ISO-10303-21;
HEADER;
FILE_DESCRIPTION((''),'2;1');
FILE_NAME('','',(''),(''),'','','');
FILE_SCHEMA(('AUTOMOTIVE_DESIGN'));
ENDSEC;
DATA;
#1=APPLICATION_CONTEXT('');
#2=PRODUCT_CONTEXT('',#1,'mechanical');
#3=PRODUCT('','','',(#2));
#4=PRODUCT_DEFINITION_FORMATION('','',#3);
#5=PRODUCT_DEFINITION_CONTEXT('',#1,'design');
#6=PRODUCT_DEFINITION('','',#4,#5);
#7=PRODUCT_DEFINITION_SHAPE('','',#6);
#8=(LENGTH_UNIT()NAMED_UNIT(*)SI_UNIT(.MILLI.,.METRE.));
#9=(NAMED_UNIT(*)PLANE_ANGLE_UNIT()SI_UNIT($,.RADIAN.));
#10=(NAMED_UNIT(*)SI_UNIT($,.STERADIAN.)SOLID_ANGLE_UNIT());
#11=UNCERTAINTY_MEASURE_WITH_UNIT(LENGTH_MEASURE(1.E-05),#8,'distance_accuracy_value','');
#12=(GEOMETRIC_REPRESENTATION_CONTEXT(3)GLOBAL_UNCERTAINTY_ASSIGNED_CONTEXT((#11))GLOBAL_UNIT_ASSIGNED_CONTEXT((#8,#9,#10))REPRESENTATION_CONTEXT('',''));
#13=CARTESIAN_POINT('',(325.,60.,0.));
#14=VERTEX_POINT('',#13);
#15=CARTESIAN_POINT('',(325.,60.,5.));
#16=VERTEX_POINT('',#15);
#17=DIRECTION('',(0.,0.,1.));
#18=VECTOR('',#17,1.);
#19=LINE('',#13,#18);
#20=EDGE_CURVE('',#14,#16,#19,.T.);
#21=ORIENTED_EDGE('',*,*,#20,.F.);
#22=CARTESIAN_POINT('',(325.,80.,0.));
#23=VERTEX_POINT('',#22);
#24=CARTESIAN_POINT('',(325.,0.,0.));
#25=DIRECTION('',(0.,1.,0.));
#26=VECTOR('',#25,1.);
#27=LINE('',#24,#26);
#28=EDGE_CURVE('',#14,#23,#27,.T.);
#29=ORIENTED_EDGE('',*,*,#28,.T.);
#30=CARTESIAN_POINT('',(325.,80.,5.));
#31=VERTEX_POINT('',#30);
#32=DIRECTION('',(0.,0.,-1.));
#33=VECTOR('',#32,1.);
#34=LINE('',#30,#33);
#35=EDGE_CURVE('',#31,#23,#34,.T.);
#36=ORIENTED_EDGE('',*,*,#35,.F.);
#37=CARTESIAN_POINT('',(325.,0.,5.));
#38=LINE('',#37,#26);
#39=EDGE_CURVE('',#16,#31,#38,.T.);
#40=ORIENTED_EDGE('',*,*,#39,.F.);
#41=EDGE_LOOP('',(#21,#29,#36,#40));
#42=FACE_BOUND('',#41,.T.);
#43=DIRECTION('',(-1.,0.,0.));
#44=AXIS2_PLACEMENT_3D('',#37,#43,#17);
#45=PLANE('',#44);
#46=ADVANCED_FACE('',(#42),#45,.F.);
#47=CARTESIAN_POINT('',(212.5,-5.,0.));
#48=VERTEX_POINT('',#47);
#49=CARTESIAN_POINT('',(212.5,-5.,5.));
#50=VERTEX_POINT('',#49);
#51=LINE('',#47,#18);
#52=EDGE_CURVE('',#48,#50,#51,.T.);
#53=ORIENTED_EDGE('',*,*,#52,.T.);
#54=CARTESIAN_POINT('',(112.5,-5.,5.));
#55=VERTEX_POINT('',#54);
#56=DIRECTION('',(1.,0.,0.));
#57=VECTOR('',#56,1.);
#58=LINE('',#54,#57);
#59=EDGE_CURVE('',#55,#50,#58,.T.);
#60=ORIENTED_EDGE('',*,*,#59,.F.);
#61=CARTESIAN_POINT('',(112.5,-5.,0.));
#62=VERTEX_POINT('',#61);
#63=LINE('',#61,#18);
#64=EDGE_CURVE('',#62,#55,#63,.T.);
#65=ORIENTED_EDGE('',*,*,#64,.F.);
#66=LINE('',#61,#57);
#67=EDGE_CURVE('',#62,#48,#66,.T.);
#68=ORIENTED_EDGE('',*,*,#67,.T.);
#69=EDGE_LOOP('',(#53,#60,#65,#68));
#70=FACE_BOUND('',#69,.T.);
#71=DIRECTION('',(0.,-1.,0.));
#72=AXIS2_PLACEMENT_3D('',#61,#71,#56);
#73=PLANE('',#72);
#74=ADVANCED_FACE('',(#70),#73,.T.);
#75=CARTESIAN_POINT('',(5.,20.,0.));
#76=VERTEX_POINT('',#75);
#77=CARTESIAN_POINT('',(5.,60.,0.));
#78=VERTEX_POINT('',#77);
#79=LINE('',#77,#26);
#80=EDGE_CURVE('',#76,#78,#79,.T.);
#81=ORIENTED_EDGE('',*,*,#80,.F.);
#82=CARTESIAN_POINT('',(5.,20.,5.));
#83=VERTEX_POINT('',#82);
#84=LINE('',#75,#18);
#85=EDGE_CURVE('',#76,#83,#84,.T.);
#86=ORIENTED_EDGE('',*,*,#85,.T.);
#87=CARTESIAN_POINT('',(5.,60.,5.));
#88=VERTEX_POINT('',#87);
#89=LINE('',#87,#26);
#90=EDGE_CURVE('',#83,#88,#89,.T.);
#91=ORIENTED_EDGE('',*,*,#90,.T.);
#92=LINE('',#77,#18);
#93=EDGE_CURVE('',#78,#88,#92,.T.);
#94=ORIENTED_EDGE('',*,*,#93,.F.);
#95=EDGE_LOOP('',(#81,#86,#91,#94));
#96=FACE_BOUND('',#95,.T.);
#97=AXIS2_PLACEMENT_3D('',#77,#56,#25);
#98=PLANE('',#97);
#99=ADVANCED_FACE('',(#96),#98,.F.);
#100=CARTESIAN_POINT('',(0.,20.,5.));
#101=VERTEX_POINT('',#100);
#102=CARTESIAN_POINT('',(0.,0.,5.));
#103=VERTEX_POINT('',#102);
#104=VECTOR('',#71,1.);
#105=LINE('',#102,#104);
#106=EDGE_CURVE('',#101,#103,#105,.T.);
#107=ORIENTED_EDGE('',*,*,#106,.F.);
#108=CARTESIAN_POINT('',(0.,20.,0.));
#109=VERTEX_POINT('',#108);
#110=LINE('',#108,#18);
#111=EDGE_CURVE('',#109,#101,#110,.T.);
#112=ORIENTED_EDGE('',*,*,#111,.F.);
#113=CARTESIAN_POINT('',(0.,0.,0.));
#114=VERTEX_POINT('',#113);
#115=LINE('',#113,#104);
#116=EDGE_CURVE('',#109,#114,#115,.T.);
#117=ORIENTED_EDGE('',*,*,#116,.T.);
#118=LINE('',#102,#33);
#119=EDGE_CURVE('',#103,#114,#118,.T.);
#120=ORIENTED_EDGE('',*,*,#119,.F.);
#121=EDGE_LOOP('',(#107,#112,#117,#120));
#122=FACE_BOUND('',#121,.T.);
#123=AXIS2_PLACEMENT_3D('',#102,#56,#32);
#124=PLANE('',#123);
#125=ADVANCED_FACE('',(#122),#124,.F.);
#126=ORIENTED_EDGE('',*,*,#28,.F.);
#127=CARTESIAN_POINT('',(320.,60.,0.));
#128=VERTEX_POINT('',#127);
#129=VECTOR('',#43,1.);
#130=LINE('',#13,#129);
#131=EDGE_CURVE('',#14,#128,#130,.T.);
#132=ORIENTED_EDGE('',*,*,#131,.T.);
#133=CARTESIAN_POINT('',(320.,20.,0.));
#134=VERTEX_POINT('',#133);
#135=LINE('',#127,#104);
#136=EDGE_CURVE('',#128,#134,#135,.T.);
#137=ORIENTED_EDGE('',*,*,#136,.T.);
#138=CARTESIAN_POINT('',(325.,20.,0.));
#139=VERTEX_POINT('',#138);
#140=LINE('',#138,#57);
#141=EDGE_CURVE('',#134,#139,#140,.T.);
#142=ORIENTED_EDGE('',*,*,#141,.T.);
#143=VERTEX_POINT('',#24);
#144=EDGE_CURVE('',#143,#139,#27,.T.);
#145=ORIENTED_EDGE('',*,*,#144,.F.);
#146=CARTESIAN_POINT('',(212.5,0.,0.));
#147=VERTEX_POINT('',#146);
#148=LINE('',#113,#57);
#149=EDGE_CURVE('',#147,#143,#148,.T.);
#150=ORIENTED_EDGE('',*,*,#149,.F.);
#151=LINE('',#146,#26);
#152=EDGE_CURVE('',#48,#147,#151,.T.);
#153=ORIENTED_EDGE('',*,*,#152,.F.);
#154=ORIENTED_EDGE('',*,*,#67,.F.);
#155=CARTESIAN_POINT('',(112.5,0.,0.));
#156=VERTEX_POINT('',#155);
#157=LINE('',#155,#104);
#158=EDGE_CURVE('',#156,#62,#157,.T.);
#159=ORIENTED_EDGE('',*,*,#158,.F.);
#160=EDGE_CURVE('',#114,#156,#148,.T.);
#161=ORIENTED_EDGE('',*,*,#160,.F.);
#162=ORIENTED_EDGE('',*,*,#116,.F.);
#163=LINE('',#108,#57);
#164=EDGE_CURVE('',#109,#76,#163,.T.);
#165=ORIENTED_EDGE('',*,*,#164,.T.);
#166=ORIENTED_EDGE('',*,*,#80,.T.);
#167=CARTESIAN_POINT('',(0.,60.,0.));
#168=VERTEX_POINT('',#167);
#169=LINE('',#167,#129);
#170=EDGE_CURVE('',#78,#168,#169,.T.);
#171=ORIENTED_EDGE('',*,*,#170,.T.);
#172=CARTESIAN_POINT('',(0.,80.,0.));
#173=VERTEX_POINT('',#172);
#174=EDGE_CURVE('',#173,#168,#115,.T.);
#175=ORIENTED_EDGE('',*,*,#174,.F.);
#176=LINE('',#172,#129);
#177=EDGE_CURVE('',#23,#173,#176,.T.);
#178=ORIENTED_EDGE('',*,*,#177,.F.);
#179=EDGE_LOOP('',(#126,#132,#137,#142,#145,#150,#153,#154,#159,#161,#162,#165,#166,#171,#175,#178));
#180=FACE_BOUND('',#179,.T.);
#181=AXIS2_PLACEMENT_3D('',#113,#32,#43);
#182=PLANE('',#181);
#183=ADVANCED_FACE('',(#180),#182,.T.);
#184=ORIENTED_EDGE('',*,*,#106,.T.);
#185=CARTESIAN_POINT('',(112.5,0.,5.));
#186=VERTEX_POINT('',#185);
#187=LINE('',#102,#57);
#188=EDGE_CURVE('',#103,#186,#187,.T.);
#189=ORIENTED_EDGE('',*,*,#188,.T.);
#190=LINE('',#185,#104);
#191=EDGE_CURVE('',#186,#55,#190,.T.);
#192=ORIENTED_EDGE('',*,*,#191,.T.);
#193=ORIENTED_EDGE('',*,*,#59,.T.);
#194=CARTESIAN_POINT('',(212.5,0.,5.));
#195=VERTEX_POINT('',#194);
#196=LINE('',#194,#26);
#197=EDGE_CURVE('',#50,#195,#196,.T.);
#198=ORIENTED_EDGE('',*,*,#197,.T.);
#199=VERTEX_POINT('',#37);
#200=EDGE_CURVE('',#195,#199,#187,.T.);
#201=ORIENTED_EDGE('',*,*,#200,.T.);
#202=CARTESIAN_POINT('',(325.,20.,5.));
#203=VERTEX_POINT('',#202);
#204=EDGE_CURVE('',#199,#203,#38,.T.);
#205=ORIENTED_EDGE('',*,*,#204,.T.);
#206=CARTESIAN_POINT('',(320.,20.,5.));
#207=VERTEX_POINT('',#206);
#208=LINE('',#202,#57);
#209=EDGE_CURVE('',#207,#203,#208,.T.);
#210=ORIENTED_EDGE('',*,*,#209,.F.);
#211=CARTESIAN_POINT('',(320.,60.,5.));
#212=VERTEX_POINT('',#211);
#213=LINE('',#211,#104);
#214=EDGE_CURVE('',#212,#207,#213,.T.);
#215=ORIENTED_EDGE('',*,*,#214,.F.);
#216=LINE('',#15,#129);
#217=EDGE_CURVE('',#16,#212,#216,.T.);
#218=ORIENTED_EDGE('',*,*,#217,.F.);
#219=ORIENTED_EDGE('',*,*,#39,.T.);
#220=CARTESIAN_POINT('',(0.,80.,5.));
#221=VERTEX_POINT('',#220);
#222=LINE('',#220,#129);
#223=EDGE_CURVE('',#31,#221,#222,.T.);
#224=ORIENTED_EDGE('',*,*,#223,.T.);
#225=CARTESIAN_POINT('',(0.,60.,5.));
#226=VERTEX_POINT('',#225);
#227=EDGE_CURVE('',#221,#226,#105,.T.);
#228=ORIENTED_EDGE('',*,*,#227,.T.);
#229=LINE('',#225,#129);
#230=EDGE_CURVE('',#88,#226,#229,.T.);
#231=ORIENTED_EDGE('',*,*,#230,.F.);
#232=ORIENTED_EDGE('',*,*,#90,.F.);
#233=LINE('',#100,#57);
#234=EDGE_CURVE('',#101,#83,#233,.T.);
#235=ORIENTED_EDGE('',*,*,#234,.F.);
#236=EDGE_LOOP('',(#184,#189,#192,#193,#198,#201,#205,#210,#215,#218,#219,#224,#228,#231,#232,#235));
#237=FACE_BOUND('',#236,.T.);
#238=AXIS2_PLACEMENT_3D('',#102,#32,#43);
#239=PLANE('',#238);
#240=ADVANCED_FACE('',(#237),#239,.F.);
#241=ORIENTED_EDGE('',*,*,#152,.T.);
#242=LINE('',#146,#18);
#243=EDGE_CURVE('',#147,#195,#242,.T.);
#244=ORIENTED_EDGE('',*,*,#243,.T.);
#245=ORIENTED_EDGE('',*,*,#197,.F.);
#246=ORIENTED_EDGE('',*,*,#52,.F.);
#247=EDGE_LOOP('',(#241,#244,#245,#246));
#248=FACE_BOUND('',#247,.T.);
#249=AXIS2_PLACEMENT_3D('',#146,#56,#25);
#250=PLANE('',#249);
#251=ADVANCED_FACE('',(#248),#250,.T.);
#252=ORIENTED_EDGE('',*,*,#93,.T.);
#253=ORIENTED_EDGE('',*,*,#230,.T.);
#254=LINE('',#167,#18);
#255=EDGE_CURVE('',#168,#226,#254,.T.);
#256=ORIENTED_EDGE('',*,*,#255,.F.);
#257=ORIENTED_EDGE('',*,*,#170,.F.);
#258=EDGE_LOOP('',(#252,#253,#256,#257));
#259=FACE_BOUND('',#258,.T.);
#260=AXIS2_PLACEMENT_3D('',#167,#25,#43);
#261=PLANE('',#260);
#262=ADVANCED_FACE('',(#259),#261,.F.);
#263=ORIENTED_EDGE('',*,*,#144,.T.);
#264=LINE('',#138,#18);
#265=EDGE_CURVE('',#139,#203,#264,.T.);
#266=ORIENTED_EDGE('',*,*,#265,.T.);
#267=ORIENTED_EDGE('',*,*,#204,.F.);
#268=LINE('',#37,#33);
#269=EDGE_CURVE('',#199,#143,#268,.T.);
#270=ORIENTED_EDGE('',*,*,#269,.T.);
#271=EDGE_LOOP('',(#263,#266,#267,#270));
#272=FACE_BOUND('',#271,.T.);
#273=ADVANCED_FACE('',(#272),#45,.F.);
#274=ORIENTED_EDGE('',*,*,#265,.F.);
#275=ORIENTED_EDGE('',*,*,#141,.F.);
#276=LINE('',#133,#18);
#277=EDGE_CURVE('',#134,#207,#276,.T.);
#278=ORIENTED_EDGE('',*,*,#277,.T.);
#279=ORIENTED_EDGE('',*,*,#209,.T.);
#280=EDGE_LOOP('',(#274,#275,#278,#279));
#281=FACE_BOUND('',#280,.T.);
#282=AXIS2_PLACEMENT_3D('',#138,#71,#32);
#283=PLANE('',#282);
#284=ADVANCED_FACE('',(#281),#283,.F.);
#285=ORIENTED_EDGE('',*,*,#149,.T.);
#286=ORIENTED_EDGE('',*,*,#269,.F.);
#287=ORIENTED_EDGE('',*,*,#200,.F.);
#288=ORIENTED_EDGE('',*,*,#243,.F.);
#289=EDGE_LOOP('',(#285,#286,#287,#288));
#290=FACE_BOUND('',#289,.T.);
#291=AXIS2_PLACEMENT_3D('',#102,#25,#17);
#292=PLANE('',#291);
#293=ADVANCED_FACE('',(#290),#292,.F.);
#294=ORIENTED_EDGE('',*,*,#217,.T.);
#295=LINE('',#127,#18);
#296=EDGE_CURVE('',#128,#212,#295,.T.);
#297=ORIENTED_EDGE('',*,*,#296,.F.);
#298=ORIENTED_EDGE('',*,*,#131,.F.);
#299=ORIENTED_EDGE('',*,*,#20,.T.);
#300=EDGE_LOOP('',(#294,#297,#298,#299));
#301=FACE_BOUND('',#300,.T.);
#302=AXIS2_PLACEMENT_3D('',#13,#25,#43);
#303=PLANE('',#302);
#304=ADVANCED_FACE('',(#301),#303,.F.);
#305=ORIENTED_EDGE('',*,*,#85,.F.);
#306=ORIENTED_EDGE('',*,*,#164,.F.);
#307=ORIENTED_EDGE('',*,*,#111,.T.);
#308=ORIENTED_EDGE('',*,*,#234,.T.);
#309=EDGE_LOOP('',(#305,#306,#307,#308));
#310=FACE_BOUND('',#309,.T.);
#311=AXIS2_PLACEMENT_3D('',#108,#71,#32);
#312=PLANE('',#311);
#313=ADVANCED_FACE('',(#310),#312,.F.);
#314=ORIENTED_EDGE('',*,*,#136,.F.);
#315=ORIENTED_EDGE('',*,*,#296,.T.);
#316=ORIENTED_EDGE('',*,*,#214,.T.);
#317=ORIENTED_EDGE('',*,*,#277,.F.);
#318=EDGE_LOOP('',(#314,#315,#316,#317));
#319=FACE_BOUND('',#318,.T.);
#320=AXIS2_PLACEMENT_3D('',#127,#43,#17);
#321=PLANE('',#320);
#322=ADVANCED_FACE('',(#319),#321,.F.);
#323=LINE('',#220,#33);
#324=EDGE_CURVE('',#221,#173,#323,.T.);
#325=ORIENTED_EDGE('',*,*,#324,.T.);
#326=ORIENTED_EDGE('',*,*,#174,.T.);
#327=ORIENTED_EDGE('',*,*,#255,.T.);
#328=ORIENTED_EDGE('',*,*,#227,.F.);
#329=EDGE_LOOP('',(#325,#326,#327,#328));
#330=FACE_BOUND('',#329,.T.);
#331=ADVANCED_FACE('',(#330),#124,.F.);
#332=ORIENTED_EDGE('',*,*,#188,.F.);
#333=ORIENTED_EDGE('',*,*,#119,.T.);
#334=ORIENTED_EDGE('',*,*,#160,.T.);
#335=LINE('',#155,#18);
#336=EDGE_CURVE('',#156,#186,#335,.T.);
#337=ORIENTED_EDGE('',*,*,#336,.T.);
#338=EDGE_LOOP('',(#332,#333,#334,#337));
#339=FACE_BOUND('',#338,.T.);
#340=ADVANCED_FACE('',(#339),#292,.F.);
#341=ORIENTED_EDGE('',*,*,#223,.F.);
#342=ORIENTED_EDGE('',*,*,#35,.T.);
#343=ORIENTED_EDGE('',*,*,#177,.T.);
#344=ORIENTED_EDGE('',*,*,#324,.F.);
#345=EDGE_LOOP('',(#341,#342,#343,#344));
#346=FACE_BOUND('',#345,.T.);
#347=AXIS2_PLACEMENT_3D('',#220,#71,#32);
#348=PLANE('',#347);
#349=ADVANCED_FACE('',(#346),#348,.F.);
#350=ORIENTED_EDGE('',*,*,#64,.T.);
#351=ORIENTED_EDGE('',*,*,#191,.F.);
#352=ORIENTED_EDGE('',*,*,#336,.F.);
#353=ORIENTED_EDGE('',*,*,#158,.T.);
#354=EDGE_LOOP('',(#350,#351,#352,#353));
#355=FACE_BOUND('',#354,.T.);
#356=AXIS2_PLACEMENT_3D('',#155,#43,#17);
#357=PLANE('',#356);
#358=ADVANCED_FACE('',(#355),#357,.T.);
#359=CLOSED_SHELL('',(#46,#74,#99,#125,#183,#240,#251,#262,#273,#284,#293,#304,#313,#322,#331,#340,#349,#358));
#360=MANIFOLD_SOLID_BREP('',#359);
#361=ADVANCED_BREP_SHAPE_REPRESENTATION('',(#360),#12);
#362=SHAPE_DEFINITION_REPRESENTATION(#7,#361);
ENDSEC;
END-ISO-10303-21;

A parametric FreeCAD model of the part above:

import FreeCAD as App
import Part
import Sketcher

V = App.Vector
Q = App.Units.Quantity

doc = App.newDocument("Part")
params = doc.addObject("Spreadsheet::Sheet", "Params")
for row, (alias, value) in enumerate([
    ("sketch1_width", "325 mm"),
    ("sketch1_height", "80 mm"),
    ("pad1_length", "5 mm"),
    ("sketch2_width", "100 mm"),
    ("sketch2_height", "5 mm"),
    ("pad2_length", "5 mm"),
    ("sketch3_width", "5 mm"),
    ("sketch3_height", "40 mm"),
], start=1):
    params.set(f"A{row}", alias)
    params.set(f"B{row}", "=" + value)
    params.setAlias(f"B{row}", alias)

body = doc.addObject("PartDesign::Body", "Body")

sketch1 = body.newObject("Sketcher::SketchObject", "Sketch")
sketch1.AttachmentSupport = (doc.getObject("XY_Plane"), [""])
sketch1.MapMode = "FlatFace"
sketch1.addGeometry(Part.LineSegment(V(0, 80, 0), V(0, 0, 0)), False)
sketch1.addGeometry(Part.LineSegment(V(0, 0, 0), V(325, 0, 0)), False)
sketch1.addGeometry(Part.LineSegment(V(325, 0, 0), V(325, 80, 0)), False)
sketch1.addGeometry(Part.LineSegment(V(325, 80, 0), V(0, 80, 0)), False)
sketch1.addConstraint(Sketcher.Constraint("Coincident", 0, 2, 1, 1))
sketch1.addConstraint(Sketcher.Constraint("Coincident", 1, 2, 2, 1))
sketch1.addConstraint(Sketcher.Constraint("Coincident", 2, 2, 3, 1))
sketch1.addConstraint(Sketcher.Constraint("Coincident", 3, 2, 0, 1))
sketch1.addConstraint(Sketcher.Constraint("Vertical", 0))
sketch1.addConstraint(Sketcher.Constraint("Horizontal", 1))
sketch1.addConstraint(Sketcher.Constraint("Vertical", 2))
sketch1.addConstraint(Sketcher.Constraint("Horizontal", 3))
sketch1.addConstraint(Sketcher.Constraint("Coincident", 0, 2, -1, 1))
sketch1.addConstraint(Sketcher.Constraint("DistanceX", 1, 1, 1, 2, Q("325 mm")))
sketch1.addConstraint(Sketcher.Constraint("DistanceY", 0, 2, 0, 1, Q("80 mm")))
sketch1.setExpression("Constraints[9]", "Params.sketch1_width")
sketch1.setExpression("Constraints[10]", "Params.sketch1_height")
pad1 = body.newObject("PartDesign::Pad", "Pad")
pad1.Profile = sketch1
pad1.setExpression("Length", "Params.pad1_length")

sketch2 = body.newObject("Sketcher::SketchObject", "Sketch001")
sketch2.AttachmentSupport = (doc.getObject("XY_Plane"), [""])
sketch2.MapMode = "FlatFace"
sketch2.AttachmentOffset = App.Placement(V(0, 0, 5), App.Rotation())
sketch2.addGeometry(Part.LineSegment(V(112, 0, 0), V(112, -5, 0)), False)
sketch2.addGeometry(Part.LineSegment(V(112, -5, 0), V(212, -5, 0)), False)
sketch2.addGeometry(Part.LineSegment(V(212, -5, 0), V(212, 0, 0)), False)
sketch2.addGeometry(Part.LineSegment(V(212, 0, 0), V(112, 0, 0)), False)
sketch2.addConstraint(Sketcher.Constraint("Coincident", 0, 2, 1, 1))
sketch2.addConstraint(Sketcher.Constraint("Coincident", 1, 2, 2, 1))
sketch2.addConstraint(Sketcher.Constraint("Coincident", 2, 2, 3, 1))
sketch2.addConstraint(Sketcher.Constraint("Coincident", 3, 2, 0, 1))
sketch2.addConstraint(Sketcher.Constraint("Vertical", 0))
sketch2.addConstraint(Sketcher.Constraint("Horizontal", 1))
sketch2.addConstraint(Sketcher.Constraint("Vertical", 2))
sketch2.addConstraint(Sketcher.Constraint("Horizontal", 3))
sketch2.addConstraint(Sketcher.Constraint("PointOnObject", 2, 2, -1))
sketch2.addConstraint(Sketcher.Constraint("DistanceX", 1, 1, 1, 2, Q("100 mm")))
sketch2.addConstraint(Sketcher.Constraint("DistanceY", 0, 2, 0, 1, Q("5 mm")))
sketch2.addConstraint(Sketcher.Constraint("DistanceX", -1, 1, 0, 2, Q("112.5 mm")))
sketch2.setExpression("Constraints[9]", "Params.sketch2_width")
sketch2.setExpression("Constraints[10]", "Params.sketch2_height")
pad2 = body.newObject("PartDesign::Pad", "Pad001")
pad2.Profile = sketch2
pad2.setExpression("Length", "Params.pad2_length")
pad2.Reversed = True

sketch3 = body.newObject("Sketcher::SketchObject", "Sketch002")
sketch3.AttachmentSupport = (doc.getObject("XY_Plane"), [""])
sketch3.MapMode = "FlatFace"
sketch3.AttachmentOffset = App.Placement(V(0, 0, 5), App.Rotation())
sketch3.addGeometry(Part.LineSegment(V(0, 60, 0), V(0, 20, 0)), False)
sketch3.addGeometry(Part.LineSegment(V(0, 20, 0), V(5, 20, 0)), False)
sketch3.addGeometry(Part.LineSegment(V(5, 20, 0), V(5, 60, 0)), False)
sketch3.addGeometry(Part.LineSegment(V(5, 60, 0), V(0, 60, 0)), False)
sketch3.addGeometry(Part.LineSegment(V(320, 60, 0), V(320, 20, 0)), False)
sketch3.addGeometry(Part.LineSegment(V(320, 20, 0), V(325, 20, 0)), False)
sketch3.addGeometry(Part.LineSegment(V(325, 20, 0), V(325, 60, 0)), False)
sketch3.addGeometry(Part.LineSegment(V(325, 60, 0), V(320, 60, 0)), False)
sketch3.addConstraint(Sketcher.Constraint("Coincident", 0, 2, 1, 1))
sketch3.addConstraint(Sketcher.Constraint("Coincident", 1, 2, 2, 1))
sketch3.addConstraint(Sketcher.Constraint("Coincident", 2, 2, 3, 1))
sketch3.addConstraint(Sketcher.Constraint("Coincident", 3, 2, 0, 1))
sketch3.addConstraint(Sketcher.Constraint("Coincident", 4, 2, 5, 1))
sketch3.addConstraint(Sketcher.Constraint("Coincident", 5, 2, 6, 1))
sketch3.addConstraint(Sketcher.Constraint("Coincident", 6, 2, 7, 1))
sketch3.addConstraint(Sketcher.Constraint("Coincident", 7, 2, 4, 1))
sketch3.addConstraint(Sketcher.Constraint("Vertical", 0))
sketch3.addConstraint(Sketcher.Constraint("Horizontal", 1))
sketch3.addConstraint(Sketcher.Constraint("Vertical", 2))
sketch3.addConstraint(Sketcher.Constraint("Horizontal", 3))
sketch3.addConstraint(Sketcher.Constraint("Vertical", 4))
sketch3.addConstraint(Sketcher.Constraint("Horizontal", 5))
sketch3.addConstraint(Sketcher.Constraint("Vertical", 6))
sketch3.addConstraint(Sketcher.Constraint("Horizontal", 7))
sketch3.addConstraint(Sketcher.Constraint("PointOnObject", 0, 2, -2))
sketch3.addConstraint(Sketcher.Constraint("Horizontal", 1, 2, 4, 2))
sketch3.addConstraint(Sketcher.Constraint("Horizontal", 3, 2, 6, 2))
sketch3.addConstraint(Sketcher.Constraint("Equal", 3, 5))
sketch3.addConstraint(Sketcher.Constraint("DistanceX", 1, 1, 1, 2, Q("5 mm")))
sketch3.addConstraint(Sketcher.Constraint("DistanceY", 0, 2, 0, 1, Q("40 mm")))
sketch3.addConstraint(Sketcher.Constraint("DistanceY", -1, 1, 0, 2, Q("20 mm")))
sketch3.addConstraint(Sketcher.Constraint("DistanceX", -1, 1, 4, 2, Q("320 mm")))
sketch3.setExpression("Constraints[20]", "Params.sketch3_width")
sketch3.setExpression("Constraints[21]", "Params.sketch3_height")
pocket1 = body.newObject("PartDesign::Pocket", "Pocket")
pocket1.Profile = sketch3
pocket1.Type = "ThroughAll"

doc.recompute()
